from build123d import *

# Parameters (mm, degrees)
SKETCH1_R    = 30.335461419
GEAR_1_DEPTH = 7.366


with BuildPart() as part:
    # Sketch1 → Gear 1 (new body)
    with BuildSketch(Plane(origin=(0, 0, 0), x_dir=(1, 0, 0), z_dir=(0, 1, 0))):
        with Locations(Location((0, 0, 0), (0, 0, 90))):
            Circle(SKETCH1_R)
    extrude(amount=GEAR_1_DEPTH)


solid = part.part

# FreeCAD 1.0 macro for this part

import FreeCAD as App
import Part
import Sketcher
from FreeCAD import Vector
Q = App.Units.Quantity

doc = App.newDocument("Part")
body = doc.addObject("PartDesign::Body", "Body")

sketch1 = doc.addObject("Sketcher::SketchObject", "Sketch")
body.addObject(sketch1)
sketch1.AttachmentSupport = (doc.XZ_Plane, [""])
sketch1.MapMode = "FlatFace"
sketch1.addGeometry(Part.Circle(Vector(0, 0, 0), Vector(0, 0, 1), 30), False)
sketch1.addConstraint(Sketcher.Constraint("Coincident", 0, 3, -1, 1))
sketch1.addConstraint(Sketcher.Constraint("Diameter", 0, 60.670923))
pad1 = doc.addObject("PartDesign::Pad", "Pad")
body.addObject(pad1)
pad1.Profile = sketch1
pad1.Length = Q("0.29 in")
pad1.Reversed = True

doc.recompute()
